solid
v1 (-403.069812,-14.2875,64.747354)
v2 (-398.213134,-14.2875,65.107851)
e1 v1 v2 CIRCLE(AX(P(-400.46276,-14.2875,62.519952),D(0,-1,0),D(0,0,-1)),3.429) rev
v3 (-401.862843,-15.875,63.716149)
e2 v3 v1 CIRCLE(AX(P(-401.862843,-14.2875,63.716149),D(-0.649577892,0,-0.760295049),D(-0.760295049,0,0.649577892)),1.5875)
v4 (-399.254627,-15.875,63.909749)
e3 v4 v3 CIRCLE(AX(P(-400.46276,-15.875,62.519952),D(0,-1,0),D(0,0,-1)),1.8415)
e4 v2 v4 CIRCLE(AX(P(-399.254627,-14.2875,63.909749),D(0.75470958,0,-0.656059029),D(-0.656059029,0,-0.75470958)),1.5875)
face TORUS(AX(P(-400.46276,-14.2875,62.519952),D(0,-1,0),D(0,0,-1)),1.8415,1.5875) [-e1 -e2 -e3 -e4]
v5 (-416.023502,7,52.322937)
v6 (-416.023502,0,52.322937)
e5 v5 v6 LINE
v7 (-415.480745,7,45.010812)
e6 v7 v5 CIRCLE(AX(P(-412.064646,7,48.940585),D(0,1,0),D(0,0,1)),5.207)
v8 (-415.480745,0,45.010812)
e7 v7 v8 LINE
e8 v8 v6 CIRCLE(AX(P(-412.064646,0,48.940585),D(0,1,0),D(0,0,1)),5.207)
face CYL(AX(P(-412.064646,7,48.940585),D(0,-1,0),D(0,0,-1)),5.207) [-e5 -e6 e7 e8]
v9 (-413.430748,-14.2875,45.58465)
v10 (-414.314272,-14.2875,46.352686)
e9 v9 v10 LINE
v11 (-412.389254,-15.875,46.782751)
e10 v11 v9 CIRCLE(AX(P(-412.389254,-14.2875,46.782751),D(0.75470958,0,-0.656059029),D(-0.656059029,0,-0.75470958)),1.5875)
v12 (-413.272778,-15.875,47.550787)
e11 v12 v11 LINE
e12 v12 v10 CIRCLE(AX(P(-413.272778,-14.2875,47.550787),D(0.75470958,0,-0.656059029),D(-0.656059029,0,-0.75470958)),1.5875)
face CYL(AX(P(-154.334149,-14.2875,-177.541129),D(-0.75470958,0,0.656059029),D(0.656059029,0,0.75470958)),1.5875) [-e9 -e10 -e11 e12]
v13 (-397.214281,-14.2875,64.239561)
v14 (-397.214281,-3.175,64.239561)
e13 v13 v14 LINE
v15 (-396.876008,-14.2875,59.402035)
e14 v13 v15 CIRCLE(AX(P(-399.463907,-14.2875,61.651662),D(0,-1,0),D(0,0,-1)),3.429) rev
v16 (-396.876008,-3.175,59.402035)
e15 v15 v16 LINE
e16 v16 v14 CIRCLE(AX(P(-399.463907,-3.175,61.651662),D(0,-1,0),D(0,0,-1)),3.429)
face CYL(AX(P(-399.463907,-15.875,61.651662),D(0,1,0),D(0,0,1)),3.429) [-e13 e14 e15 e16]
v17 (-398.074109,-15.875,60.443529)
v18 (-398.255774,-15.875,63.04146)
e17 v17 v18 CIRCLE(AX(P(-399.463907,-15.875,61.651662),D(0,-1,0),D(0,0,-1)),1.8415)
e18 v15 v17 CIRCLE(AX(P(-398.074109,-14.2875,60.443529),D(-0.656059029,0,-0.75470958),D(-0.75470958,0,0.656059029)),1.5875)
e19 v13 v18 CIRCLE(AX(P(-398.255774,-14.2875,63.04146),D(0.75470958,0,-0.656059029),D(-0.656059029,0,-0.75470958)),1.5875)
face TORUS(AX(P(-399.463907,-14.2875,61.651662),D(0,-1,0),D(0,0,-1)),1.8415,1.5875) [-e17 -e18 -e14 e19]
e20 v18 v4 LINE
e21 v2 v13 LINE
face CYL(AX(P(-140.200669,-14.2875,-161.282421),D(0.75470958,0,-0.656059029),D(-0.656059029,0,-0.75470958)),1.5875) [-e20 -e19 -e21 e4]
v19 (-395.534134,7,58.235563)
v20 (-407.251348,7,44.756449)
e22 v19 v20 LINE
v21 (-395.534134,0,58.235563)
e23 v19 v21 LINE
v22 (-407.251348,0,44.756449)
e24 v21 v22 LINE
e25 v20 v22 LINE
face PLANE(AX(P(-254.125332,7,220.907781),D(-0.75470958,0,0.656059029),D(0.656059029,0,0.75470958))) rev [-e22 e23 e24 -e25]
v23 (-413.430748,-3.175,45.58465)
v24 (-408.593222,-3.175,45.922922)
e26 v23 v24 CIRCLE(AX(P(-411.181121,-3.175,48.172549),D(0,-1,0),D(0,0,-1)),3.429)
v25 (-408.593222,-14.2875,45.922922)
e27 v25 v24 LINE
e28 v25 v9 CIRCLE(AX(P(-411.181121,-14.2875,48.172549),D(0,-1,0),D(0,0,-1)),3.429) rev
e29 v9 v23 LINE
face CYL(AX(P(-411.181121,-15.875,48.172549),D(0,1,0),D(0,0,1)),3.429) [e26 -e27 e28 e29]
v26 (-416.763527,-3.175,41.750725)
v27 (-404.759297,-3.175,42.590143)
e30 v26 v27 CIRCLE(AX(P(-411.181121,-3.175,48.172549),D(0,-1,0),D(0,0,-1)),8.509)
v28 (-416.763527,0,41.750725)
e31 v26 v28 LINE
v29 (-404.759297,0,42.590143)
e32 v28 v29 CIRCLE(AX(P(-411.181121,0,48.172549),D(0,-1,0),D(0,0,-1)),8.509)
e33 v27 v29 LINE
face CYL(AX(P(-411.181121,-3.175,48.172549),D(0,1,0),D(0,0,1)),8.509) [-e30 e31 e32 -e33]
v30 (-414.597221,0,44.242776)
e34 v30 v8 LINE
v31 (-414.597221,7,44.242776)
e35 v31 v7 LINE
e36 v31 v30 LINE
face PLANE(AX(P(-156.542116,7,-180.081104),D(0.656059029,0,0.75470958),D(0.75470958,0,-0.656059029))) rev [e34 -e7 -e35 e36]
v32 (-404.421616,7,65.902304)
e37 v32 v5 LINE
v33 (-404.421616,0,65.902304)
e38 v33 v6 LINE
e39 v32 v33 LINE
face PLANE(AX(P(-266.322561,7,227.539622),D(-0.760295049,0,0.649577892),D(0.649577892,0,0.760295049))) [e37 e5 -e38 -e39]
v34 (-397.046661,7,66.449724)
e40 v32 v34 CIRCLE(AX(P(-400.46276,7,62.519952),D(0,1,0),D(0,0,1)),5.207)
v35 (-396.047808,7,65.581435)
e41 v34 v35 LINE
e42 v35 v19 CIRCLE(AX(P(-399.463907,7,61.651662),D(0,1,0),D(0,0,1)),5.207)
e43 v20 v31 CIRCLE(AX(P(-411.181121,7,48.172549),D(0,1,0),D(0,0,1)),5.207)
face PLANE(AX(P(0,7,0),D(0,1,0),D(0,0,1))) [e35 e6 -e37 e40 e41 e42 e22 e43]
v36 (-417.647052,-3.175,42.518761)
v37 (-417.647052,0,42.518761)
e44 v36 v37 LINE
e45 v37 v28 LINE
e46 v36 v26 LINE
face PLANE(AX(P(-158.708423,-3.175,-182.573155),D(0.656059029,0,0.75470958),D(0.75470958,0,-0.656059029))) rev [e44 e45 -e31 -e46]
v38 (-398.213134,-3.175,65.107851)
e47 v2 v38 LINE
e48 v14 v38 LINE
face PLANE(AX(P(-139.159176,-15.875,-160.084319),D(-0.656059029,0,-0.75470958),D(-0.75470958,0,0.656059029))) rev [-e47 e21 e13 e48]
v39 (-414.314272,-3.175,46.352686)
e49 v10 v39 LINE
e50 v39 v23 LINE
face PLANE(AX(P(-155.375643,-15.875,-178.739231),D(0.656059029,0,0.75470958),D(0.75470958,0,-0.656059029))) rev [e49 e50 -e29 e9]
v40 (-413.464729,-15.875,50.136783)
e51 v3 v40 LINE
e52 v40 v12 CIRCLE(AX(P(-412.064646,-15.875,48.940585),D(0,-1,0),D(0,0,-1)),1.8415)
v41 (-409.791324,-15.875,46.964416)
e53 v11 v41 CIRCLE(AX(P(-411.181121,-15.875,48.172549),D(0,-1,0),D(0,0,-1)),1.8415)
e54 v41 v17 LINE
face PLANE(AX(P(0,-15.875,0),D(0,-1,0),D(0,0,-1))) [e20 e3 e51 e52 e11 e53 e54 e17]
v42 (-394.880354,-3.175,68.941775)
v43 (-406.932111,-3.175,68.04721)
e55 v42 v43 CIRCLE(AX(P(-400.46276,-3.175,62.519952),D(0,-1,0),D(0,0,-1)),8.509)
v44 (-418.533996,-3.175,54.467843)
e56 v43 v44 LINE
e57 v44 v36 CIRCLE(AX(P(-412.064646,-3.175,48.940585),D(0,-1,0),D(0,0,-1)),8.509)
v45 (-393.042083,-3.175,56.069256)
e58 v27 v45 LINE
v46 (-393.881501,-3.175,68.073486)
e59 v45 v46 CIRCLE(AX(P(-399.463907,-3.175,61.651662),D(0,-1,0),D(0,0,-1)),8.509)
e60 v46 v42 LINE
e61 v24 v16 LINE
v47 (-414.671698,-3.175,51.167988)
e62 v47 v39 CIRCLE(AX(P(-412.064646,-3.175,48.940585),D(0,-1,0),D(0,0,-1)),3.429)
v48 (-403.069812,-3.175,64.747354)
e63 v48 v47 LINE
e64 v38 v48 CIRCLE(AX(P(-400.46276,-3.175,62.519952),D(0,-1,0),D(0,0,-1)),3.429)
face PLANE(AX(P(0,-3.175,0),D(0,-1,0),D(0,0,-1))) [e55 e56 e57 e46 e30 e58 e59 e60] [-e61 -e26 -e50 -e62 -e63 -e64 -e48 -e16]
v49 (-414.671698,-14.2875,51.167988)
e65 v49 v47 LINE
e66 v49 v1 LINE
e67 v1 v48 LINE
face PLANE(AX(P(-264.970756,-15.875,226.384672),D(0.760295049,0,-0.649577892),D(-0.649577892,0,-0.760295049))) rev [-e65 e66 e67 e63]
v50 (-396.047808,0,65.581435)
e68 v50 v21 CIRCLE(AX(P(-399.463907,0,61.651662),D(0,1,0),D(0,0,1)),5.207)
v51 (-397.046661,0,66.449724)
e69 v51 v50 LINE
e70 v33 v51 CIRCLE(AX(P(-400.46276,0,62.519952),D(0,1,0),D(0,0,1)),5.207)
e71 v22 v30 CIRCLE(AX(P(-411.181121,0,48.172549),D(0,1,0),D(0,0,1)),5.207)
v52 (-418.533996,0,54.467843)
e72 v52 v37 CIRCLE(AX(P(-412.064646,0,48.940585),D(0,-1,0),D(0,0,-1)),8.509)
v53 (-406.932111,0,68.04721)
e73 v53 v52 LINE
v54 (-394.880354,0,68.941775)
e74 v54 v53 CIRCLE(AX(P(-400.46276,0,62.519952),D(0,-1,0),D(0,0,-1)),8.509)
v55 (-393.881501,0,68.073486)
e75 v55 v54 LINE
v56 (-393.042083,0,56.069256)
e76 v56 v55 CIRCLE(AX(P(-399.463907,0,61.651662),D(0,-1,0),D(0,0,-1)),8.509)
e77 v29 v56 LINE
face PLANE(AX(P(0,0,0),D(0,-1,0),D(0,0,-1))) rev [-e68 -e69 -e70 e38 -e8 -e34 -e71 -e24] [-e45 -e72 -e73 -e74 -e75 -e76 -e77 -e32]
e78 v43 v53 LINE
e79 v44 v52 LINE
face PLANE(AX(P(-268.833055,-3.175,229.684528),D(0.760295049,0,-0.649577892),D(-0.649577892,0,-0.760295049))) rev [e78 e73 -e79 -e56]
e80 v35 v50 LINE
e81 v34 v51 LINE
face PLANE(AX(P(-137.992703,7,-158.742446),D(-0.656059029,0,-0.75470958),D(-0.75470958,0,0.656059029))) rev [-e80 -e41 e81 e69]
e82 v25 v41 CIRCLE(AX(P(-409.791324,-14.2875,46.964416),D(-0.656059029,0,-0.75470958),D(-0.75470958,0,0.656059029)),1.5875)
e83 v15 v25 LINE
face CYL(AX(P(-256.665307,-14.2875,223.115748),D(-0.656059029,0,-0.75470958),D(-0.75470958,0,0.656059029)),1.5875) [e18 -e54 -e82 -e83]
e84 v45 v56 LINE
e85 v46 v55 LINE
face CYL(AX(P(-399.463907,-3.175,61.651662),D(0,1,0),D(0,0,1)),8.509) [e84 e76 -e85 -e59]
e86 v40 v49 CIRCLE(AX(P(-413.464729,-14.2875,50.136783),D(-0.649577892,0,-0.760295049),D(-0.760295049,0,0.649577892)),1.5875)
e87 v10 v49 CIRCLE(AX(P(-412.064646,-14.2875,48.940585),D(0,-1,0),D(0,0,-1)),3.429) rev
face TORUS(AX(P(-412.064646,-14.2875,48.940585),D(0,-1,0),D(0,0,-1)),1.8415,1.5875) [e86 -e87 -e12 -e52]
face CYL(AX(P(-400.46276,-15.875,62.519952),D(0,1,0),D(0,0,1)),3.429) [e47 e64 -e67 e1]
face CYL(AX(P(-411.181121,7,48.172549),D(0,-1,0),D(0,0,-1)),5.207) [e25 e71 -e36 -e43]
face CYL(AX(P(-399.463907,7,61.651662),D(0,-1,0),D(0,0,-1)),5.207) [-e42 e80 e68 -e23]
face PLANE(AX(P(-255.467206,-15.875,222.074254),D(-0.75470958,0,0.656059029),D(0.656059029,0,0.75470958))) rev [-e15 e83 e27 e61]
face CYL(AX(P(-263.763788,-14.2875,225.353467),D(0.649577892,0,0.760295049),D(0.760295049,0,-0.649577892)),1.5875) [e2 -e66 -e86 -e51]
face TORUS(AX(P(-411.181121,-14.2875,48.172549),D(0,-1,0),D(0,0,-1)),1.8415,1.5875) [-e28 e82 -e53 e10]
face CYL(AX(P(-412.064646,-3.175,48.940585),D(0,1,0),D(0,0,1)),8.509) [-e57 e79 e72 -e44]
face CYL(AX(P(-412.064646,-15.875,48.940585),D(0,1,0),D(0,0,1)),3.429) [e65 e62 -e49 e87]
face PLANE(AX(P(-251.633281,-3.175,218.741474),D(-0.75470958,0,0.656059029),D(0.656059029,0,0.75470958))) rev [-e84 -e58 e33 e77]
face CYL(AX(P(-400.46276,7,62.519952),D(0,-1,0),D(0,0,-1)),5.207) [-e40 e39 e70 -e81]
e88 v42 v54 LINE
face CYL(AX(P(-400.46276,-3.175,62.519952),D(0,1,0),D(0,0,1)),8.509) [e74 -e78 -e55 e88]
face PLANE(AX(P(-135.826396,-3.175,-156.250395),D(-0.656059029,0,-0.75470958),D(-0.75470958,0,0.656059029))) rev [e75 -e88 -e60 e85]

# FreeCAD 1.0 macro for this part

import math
import FreeCAD as App
import Part
import Sketcher
Q = App.Units.Quantity


def edges_at(feature, points):
    """Names of the edges that pass closest to the given points."""
    edges = feature.Shape.Edges
    near = lambda p: min(range(len(edges)), key=lambda i: edges[i].distToShape(Part.Vertex(*p))[0])
    return sorted({f"Edge{near(p) + 1}" for p in points})

doc = App.newDocument("Part")
body = doc.addObject("PartDesign::Body", "Body")

# Sketch on XZ plane
sketch1 = body.newObject("Sketcher::SketchObject", "Sketch")
sketch1.AttachmentSupport = (doc.getObject("XZ_Plane"), [""])
sketch1.MapMode = "FlatFace"
sketch1.addGeometry([
    Part.LineSegment(App.Vector(-397, 66.4, 0), App.Vector(-396, 65.6, 0)),  # 0
    Part.ArcOfCircle(Part.Circle(App.Vector(-399.5, 61.7, 0), App.Vector(0, 0, 1), 5.2), math.radians(-41), math.radians(49)),  # 1
    Part.LineSegment(App.Vector(-395.5, 58.2, 0), App.Vector(-407.3, 44.8, 0)),  # 2
    Part.ArcOfCircle(Part.Circle(App.Vector(-411.2, 48.2, 0), App.Vector(0, 0, 1), 5.2), math.radians(-131), math.radians(-41)),  # 3
    Part.LineSegment(App.Vector(-414.6, 44.2, 0), App.Vector(-415.5, 45, 0)),  # 4
    Part.ArcOfCircle(Part.Circle(App.Vector(-412.1, 48.9, 0), App.Vector(0, 0, 1), 5.2), math.radians(139), math.radians(229)),  # 5
    Part.LineSegment(App.Vector(-416, 52.3, 0), App.Vector(-404.4, 65.9, 0)),  # 6
    Part.ArcOfCircle(Part.Circle(App.Vector(-400.5, 62.5, 0), App.Vector(0, 0, 1), 5.2), math.radians(49), math.radians(139)),  # 7
], False)
sketch1.addConstraint([
    Sketcher.Constraint("Tangent", 0, 2, 1, 2),
    Sketcher.Constraint("Tangent", 1, 1, 2, 1),
    Sketcher.Constraint("Tangent", 2, 2, 3, 2),
    Sketcher.Constraint("Tangent", 3, 1, 4, 1),
    Sketcher.Constraint("Tangent", 4, 2, 5, 2),
    Sketcher.Constraint("Tangent", 5, 1, 6, 1),
    Sketcher.Constraint("Tangent", 6, 2, 7, 2),
    Sketcher.Constraint("Tangent", 7, 1, 0, 1),
    Sketcher.Constraint("Equal", 1, 3),
    Sketcher.Constraint("Equal", 3, 5),
    Sketcher.Constraint("Equal", 5, 7),
    Sketcher.Constraint("Perpendicular", 0, 2),
    Sketcher.Constraint("Perpendicular", 2, 4),
    Sketcher.Constraint("Angle", 0, Q("-41 deg")),
    Sketcher.Constraint("Radius", 1, Q("0.205 in")),
    Sketcher.Constraint("DistanceX", 5, 3, 2, 2, Q("0.1894999 in")),
    Sketcher.Constraint("DistanceY", 1, 3, 7, 1, Q("0.1889001 in")),
    Sketcher.Constraint("Distance", 2, 17.86),
    Sketcher.Constraint("DistanceY", -1, 1, 1, 3, 61.651662),
    Sketcher.Constraint("DistanceX", 3, 3, -1, 1, 411.181121),
])
pad1 = body.newObject("PartDesign::Pad", "Pad")
pad1.Profile = sketch1
pad1.Length = 7
pad1.Reversed = True

# Sketch on XZ plane
sketch2 = body.newObject("Sketcher::SketchObject", "Sketch001")
sketch2.AttachmentSupport = (doc.getObject("XZ_Plane"), [""])
sketch2.MapMode = "FlatFace"
sketch2.AttachmentOffset = App.Placement(App.Vector(0, 0, 0.125 * 25.4), App.Rotation())
sketch2.addGeometry([
    Part.LineSegment(App.Vector(-393.9, 68.1, 0), App.Vector(-394.9, 68.9, 0)),  # 0
    Part.ArcOfCircle(Part.Circle(App.Vector(-400.5, 62.5, 0), App.Vector(0, 0, 1), 8.5), math.radians(49), math.radians(139)),  # 1
    Part.LineSegment(App.Vector(-406.9, 68, 0), App.Vector(-418.5, 54.5, 0)),  # 2
    Part.ArcOfCircle(Part.Circle(App.Vector(-412.1, 48.9, 0), App.Vector(0, 0, 1), 8.5), math.radians(139), math.radians(229)),  # 3
    Part.LineSegment(App.Vector(-417.6, 42.5, 0), App.Vector(-416.8, 41.8, 0)),  # 4
    Part.ArcOfCircle(Part.Circle(App.Vector(-411.2, 48.2, 0), App.Vector(0, 0, 1), 8.5), math.radians(-131), math.radians(-41)),  # 5
    Part.LineSegment(App.Vector(-404.8, 42.6, 0), App.Vector(-393, 56.1, 0)),  # 6
    Part.ArcOfCircle(Part.Circle(App.Vector(-399.5, 61.7, 0), App.Vector(0, 0, 1), 8.5), math.radians(-41), math.radians(49)),  # 7
], False)
sketch2.addConstraint([
    Sketcher.Constraint("Tangent", 0, 2, 1, 1),
    Sketcher.Constraint("Tangent", 1, 2, 2, 1),
    Sketcher.Constraint("Tangent", 2, 2, 3, 1),
    Sketcher.Constraint("Tangent", 3, 2, 4, 1),
    Sketcher.Constraint("Tangent", 4, 2, 5, 1),
    Sketcher.Constraint("Tangent", 5, 2, 6, 1),
    Sketcher.Constraint("Tangent", 6, 2, 7, 1),
    Sketcher.Constraint("Tangent", 7, 2, 0, 1),
    Sketcher.Constraint("Equal", 1, 3),
    Sketcher.Constraint("Equal", 3, 5),
    Sketcher.Constraint("Equal", 5, 7),
    Sketcher.Constraint("Parallel", 0, 4),
    Sketcher.Constraint("Perpendicular", 4, 6),
    Sketcher.Constraint("Angle", 0, Q("139 deg")),
    Sketcher.Constraint("Radius", 1, Q("0.335 in")),
    Sketcher.Constraint("Distance", 6, 17.86),
    Sketcher.Constraint("DistanceX", 7, 2, -1, 1, 393.881501),
    Sketcher.Constraint("DistanceY", 3, 2, 7, 3, 19.132901),
    Sketcher.Constraint("DistanceX", 2, 2, 5, 2, 13.774699),
    Sketcher.Constraint("DistanceY", -1, 1, 1, 3, 62.519952),
])
pad2 = body.newObject("PartDesign::Pad", "Pad001")
pad2.Profile = sketch2
pad2.Length = Q("0.125 in")
pad2.Reversed = True

# Sketch on XZ plane
sketch3 = body.newObject("Sketcher::SketchObject", "Sketch002")
sketch3.AttachmentSupport = (doc.getObject("XZ_Plane"), [""])
sketch3.MapMode = "FlatFace"
sketch3.AttachmentOffset = App.Placement(App.Vector(0, 0, 0.125 * 25.4), App.Rotation())
sketch3.addGeometry([
    Part.LineSegment(App.Vector(-397.2, 64.2, 0), App.Vector(-398.2, 65.1, 0)),  # 0
    Part.ArcOfCircle(Part.Circle(App.Vector(-400.5, 62.5, 0), App.Vector(0, 0, 1), 3.4), math.radians(49), math.radians(139)),  # 1
    Part.LineSegment(App.Vector(-403.1, 64.7, 0), App.Vector(-414.7, 51.2, 0)),  # 2
    Part.ArcOfCircle(Part.Circle(App.Vector(-412.1, 48.9, 0), App.Vector(0, 0, 1), 3.4), math.radians(139), math.radians(229)),  # 3
    Part.LineSegment(App.Vector(-414.3, 46.4, 0), App.Vector(-413.4, 45.6, 0)),  # 4
    Part.ArcOfCircle(Part.Circle(App.Vector(-411.2, 48.2, 0), App.Vector(0, 0, 1), 3.4), math.radians(-131), math.radians(-41)),  # 5
    Part.LineSegment(App.Vector(-408.6, 45.9, 0), App.Vector(-396.9, 59.4, 0)),  # 6
    Part.ArcOfCircle(Part.Circle(App.Vector(-399.5, 61.7, 0), App.Vector(0, 0, 1), 3.4), math.radians(-41), math.radians(49)),  # 7
], False)
sketch3.addConstraint([
    Sketcher.Constraint("Tangent", 0, 2, 1, 1),
    Sketcher.Constraint("Tangent", 1, 2, 2, 1),
    Sketcher.Constraint("Tangent", 2, 2, 3, 1),
    Sketcher.Constraint("Tangent", 3, 2, 4, 1),
    Sketcher.Constraint("Tangent", 4, 2, 5, 1),
    Sketcher.Constraint("Tangent", 5, 2, 6, 1),
    Sketcher.Constraint("Tangent", 6, 2, 7, 1),
    Sketcher.Constraint("Tangent", 7, 2, 0, 1),
    Sketcher.Constraint("Equal", 1, 3),
    Sketcher.Constraint("Equal", 3, 5),
    Sketcher.Constraint("Equal", 5, 7),
    Sketcher.Constraint("Parallel", 0, 4),
    Sketcher.Constraint("Perpendicular", 4, 6),
    Sketcher.Constraint("Angle", 0, Q("139 deg")),
    Sketcher.Constraint("Radius", 1, Q("0.135 in")),
    Sketcher.Constraint("Distance", 6, 17.86),
    Sketcher.Constraint("DistanceY", 5, 3, 0, 2, 16.935302),
    Sketcher.Constraint("DistanceY", 3, 2, 2, 2, 4.815302),
    Sketcher.Constraint("DistanceX", 1, 3, -1, 1, 400.46276),
    Sketcher.Constraint("DistanceY", -1, 1, 1, 3, 62.519952),
])
pad3 = body.newObject("PartDesign::Pad", "Pad002")
pad3.Profile = sketch3
pad3.Length = Q("0.5 in")
doc.recompute()

fillet = body.newObject("PartDesign::Fillet", "Fillet")
fillet.Base = (pad3, edges_at(pad3, [
    (-397.714, -15.875, 64.674),
    (-400.717, -15.875, 65.94),
    (-408.871, -15.875, 57.958),
    (-415.484, -15.875, 48.687),
    (-413.873, -15.875, 45.969),
    (-410.942, -15.875, 44.752),
    (-402.735, -15.875, 52.662),
    (-396.043, -15.875, 61.891),
]))
fillet.Radius = Q("0.0625 in")

doc.recompute()
